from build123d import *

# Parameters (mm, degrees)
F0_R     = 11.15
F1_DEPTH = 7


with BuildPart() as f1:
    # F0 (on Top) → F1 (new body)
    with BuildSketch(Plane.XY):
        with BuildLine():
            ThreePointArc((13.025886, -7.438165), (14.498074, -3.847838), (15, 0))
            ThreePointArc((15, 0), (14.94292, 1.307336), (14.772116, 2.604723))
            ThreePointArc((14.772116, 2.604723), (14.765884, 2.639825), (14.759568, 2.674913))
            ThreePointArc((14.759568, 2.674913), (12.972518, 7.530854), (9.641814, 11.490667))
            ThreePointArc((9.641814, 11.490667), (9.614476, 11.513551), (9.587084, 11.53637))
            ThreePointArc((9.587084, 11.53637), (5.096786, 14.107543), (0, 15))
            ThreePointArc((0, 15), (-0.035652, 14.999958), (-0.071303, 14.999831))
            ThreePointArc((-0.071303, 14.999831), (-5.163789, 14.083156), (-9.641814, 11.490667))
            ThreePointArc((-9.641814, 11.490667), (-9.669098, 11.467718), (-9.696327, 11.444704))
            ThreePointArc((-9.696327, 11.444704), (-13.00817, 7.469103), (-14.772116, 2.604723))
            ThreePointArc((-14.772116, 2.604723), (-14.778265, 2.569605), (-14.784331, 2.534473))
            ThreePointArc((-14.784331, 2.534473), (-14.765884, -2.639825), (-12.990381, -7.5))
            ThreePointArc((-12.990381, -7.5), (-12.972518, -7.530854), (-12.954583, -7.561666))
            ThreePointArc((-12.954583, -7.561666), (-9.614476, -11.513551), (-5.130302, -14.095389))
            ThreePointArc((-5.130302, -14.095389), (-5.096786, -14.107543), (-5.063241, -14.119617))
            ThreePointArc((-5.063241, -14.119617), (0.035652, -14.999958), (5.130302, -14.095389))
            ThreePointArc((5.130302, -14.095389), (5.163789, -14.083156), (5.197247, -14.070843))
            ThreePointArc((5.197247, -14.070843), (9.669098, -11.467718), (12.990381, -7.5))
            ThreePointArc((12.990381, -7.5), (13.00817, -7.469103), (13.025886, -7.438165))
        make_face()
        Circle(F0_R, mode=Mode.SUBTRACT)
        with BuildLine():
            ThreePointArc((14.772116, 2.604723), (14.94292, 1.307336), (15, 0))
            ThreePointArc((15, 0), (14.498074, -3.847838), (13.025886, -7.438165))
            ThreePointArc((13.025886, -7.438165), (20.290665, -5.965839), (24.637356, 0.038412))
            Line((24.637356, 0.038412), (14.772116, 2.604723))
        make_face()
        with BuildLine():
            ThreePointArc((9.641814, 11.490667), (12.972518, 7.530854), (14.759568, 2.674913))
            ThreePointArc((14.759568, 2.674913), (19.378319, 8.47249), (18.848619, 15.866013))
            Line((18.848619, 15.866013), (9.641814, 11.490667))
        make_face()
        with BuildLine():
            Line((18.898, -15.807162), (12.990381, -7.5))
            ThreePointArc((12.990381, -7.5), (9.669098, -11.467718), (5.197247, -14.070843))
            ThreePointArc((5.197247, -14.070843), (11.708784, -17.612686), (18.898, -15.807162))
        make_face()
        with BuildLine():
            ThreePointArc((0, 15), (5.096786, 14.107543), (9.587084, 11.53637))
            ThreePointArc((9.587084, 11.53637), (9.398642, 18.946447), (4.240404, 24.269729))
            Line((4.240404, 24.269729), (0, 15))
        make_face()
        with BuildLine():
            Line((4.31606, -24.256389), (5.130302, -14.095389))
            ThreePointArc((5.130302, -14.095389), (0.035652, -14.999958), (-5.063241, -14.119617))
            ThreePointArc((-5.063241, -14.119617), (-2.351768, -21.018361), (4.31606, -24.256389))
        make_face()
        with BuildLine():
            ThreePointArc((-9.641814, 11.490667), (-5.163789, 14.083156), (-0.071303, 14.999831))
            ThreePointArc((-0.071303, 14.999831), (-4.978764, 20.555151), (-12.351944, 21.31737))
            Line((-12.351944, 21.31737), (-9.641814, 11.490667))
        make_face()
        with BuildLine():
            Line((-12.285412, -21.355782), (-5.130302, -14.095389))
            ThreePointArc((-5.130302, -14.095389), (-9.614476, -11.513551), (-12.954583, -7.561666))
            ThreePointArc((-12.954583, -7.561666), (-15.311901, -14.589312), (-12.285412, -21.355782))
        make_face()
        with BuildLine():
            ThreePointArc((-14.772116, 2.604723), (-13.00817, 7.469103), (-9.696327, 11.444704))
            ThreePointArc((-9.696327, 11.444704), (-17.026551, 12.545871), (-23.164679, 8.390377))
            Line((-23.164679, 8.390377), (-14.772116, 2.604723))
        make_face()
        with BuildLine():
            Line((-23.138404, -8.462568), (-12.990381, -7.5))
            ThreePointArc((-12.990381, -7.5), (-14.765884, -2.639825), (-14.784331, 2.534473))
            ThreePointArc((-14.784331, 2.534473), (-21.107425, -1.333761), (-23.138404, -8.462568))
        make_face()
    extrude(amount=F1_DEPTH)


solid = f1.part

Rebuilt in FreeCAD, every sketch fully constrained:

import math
import FreeCAD as App
import Part
import Sketcher

V = App.Vector

doc = App.newDocument("Part")
body = doc.addObject("PartDesign::Body", "Body")

# Sketch on XY plane
sketch1 = body.newObject("Sketcher::SketchObject", "Sketch")
sketch1.AttachmentSupport = (doc.getObject("XY_Plane"), [""])
sketch1.MapMode = "FlatFace"
sketch1.addGeometry([
    Part.ArcOfCircle(Part.Circle(V(-0.157581, 0.090531, 0), V(0, 0, 1), 15.181735), math.radians(-29.998534), math.radians(-29.729435)),  # 0
    Part.ArcOfCircle(Part.Circle(V(14.772116, 2.604723, 0), V(0, 0, 1), 10.193572), math.radians(-99.863817), math.radians(-14.581551)),  # 1
    Part.LineSegment(V(24.637356, 0.038412, 0), V(14.772116, 2.604723, 0)),  # 2
    Part.ArcOfCircle(Part.Circle(V(0.072443, 0.013051, 0), V(0, 0, 1), 14.926391), math.radians(9.998953), math.radians(10.272653)),  # 3
    Part.ArcOfCircle(Part.Circle(V(9.641815, 11.490666, 0), V(0, 0, 1), 10.193572), math.radians(-59.863821), math.radians(25.418454)),  # 4
    Part.LineSegment(V(18.848619, 15.866013, 0), V(9.641814, 11.490667, 0)),  # 5
    Part.ArcOfCircle(Part.Circle(V(-0.026385, -0.031519, 0), V(0, 0, 1), 15.041105), math.radians(50.000184), math.radians(50.271798)),  # 6
    Part.ArcOfCircle(Part.Circle(V(0.000002, 15, 0), V(0, 0, 1), 10.193571), math.radians(-19.863822), math.radians(65.418453)),  # 7
    Part.LineSegment(V(4.240404, 24.269729, 0), V(0, 15, 0)),  # 8
    Part.ArcOfCircle(Part.Circle(V(-0.000211, 0.046982, 0), V(0, 0, 1), 14.953018), math.radians(89.999193), math.radians(90.272407)),  # 9
    Part.ArcOfCircle(Part.Circle(V(-9.641813, 11.490667, 0), V(0, 0, 1), 10.193572), math.radians(20.136182), math.radians(105.418455)),  # 10
    Part.LineSegment(V(-12.351944, 21.31737, 0), V(-9.641814, 11.490667, 0)),  # 11
    Part.ArcOfCircle(Part.Circle(V(-0.046447, 0.05507, 0), V(0, 0, 1), 14.927959), math.radians(129.999298), math.radians(130.272974)),  # 12
    Part.ArcOfCircle(Part.Circle(V(-14.772116, 2.604723, 0), V(0, 0, 1), 10.193572), math.radians(60.136182), math.radians(145.418446)),  # 13
    Part.LineSegment(V(-23.164679, 8.390377, 0), V(-14.772116, 2.604723, 0)),  # 14
    Part.ArcOfCircle(Part.Circle(V(0.09947, -0.017321, 0), V(0, 0, 1), 15.100966), math.radians(170.000816), math.radians(170.271356)),  # 15
    Part.ArcOfCircle(Part.Circle(V(-12.990381, -7.5, 0), V(0, 0, 1), 10.193572), math.radians(100.136179), math.radians(185.418451)),  # 16
    Part.LineSegment(V(-23.138404, -8.462568, 0), V(-12.990381, -7.5, 0)),  # 17
    Part.ArcOfCircle(Part.Circle(V(0.215163, 0.124784, 0), V(0, 0, 1), 15.248729), math.radians(-149.998177), math.radians(-149.73026)),  # 18
    Part.ArcOfCircle(Part.Circle(V(-5.130304, -14.095389, 0), V(0, 0, 1), 10.19357), math.radians(140.136177), math.radians(225.418458)),  # 19
    Part.LineSegment(V(-12.285412, -21.355782, 0), V(-5.130302, -14.095389, 0)),  # 20
    Part.ArcOfCircle(Part.Circle(V(-0.021397, -0.059306, 0), V(0, 0, 1), 14.936952), math.radians(-110.000681), math.radians(-109.727172)),  # 21
    Part.ArcOfCircle(Part.Circle(V(5.130302, -14.09539, 0), V(0, 0, 1), 10.193571), math.radians(-179.863824), math.radians(-94.58155)),  # 22
    Part.LineSegment(V(4.31606, -24.256389, 0), V(5.130302, -14.095389, 0)),  # 23
    Part.ArcOfCircle(Part.Circle(V(0.02177, -0.059181, 0), V(0, 0, 1), 14.936942), math.radians(-70.000828), math.radians(-69.72732)),  # 24
    Part.ArcOfCircle(Part.Circle(V(12.990381, -7.5, 0), V(0, 0, 1), 10.193572), math.radians(-139.863819), math.radians(-54.581551)),  # 25
    Part.LineSegment(V(18.898, -15.807162, 0), V(12.990381, -7.5, 0)),  # 26
    Part.Circle(V(0, 0, 0), V(0, 0, 1), 11.15),  # 27
], False)
sketch1.addConstraint([
    Sketcher.Constraint("Coincident", 0, 2, 1, 1),
    Sketcher.Constraint("Coincident", 1, 2, 2, 1),
    Sketcher.Constraint("Coincident", 2, 2, 3, 1),
    Sketcher.Constraint("Coincident", 3, 2, 4, 1),
    Sketcher.Constraint("Coincident", 4, 2, 5, 1),
    Sketcher.Constraint("Coincident", 5, 2, 6, 1),
    Sketcher.Constraint("Coincident", 6, 2, 7, 1),
    Sketcher.Constraint("Coincident", 7, 2, 8, 1),
    Sketcher.Constraint("Coincident", 8, 2, 9, 1),
    Sketcher.Constraint("Coincident", 9, 2, 10, 1),
    Sketcher.Constraint("Coincident", 10, 2, 11, 1),
    Sketcher.Constraint("Coincident", 11, 2, 12, 1),
    Sketcher.Constraint("Coincident", 12, 2, 13, 1),
    Sketcher.Constraint("Coincident", 13, 2, 14, 1),
    Sketcher.Constraint("Coincident", 14, 2, 15, 1),
    Sketcher.Constraint("Coincident", 15, 2, 16, 1),
    Sketcher.Constraint("Coincident", 16, 2, 17, 1),
    Sketcher.Constraint("Coincident", 17, 2, 18, 1),
    Sketcher.Constraint("Coincident", 18, 2, 19, 1),
    Sketcher.Constraint("Coincident", 19, 2, 20, 1),
    Sketcher.Constraint("Coincident", 20, 2, 21, 1),
    Sketcher.Constraint("Coincident", 21, 2, 22, 1),
    Sketcher.Constraint("Coincident", 22, 2, 23, 1),
    Sketcher.Constraint("Coincident", 23, 2, 24, 1),
    Sketcher.Constraint("Coincident", 24, 2, 25, 1),
    Sketcher.Constraint("Coincident", 25, 2, 26, 1),
    Sketcher.Constraint("Coincident", 26, 2, 0, 1),
    Sketcher.Constraint("Coincident", 27, 3, -1, 1),
    Sketcher.Constraint("Coincident", 2, 2, 1, 3),
    Sketcher.Constraint("Coincident", 5, 2, 4, 3),
    Sketcher.Constraint("Coincident", 8, 2, 7, 3),
    Sketcher.Constraint("Coincident", 11, 2, 10, 3),
    Sketcher.Constraint("Coincident", 14, 2, 13, 3),
    Sketcher.Constraint("Coincident", 17, 2, 16, 3),
    Sketcher.Constraint("Coincident", 20, 2, 19, 3),
    Sketcher.Constraint("Coincident", 23, 2, 22, 3),
    Sketcher.Constraint("Coincident", 26, 2, 25, 3),
    Sketcher.Constraint("Equal", 1, 4),
    Sketcher.Constraint("Equal", 4, 7),
    Sketcher.Constraint("Equal", 7, 10),
    Sketcher.Constraint("Equal", 10, 13),
    Sketcher.Constraint("Equal", 13, 16),
    Sketcher.Constraint("Equal", 16, 19),
    Sketcher.Constraint("Equal", 19, 22),
    Sketcher.Constraint("Equal", 22, 25),
    Sketcher.Constraint("Symmetric", 4, 3, 10, 3, -2),
    Sketcher.Constraint("Symmetric", 1, 3, 13, 3, -2),
    Sketcher.Constraint("Symmetric", 19, 3, 22, 3, -2),
    Sketcher.Constraint("Symmetric", 16, 3, 25, 3, -2),
    Sketcher.Constraint("PointOnObject", 7, 3, -2),
    Sketcher.Constraint("Diameter", 27, 22.3),
    Sketcher.Constraint("DistanceY", -1, 1, 7, 3, 15.0),
    Sketcher.Constraint("DistanceY", 16, 3, -1, 1, 7.5),
    Sketcher.Constraint("Radius", 3, 14.926391),
    Sketcher.Constraint("Radius", 4, 10.193572),
    Sketcher.Constraint("Radius", 12, 14.927959),
    Sketcher.Constraint("Radius", 18, 15.248729),
    Sketcher.Constraint("Radius", 21, 14.936952),
    Sketcher.Constraint("DistanceX", -1, 1, 25, 2, 18.898),
    Sketcher.Constraint("Radius", 0, 15.181735),
    Sketcher.Constraint("Radius", 6, 15.041105),
    Sketcher.Constraint("Radius", 9, 14.953018),
    Sketcher.Constraint("Radius", 15, 15.100966),
    Sketcher.Constraint("Radius", 24, 14.936942),
    Sketcher.Constraint("DistanceY", 22, 2, 22, 3, 10.160999),
    Sketcher.Constraint("DistanceX", -1, 1, 22, 3, 5.130302),
    Sketcher.Constraint("DistanceX", 4, 3, 1, 3, 5.130301),
    Sketcher.Constraint("DistanceX", 6, 3, 1, 3, 14.798501),
    Sketcher.Constraint("DistanceY", 6, 3, 9, 3, 0.078501),
    Sketcher.Constraint("DistanceY", 6, 3, 15, 3, 0.014199),
    Sketcher.Constraint("DistanceX", 16, 3, 0, 3, 12.8328),
    Sketcher.Constraint("DistanceX", 21, 3, 22, 3, 5.151698),
    Sketcher.Constraint("DistanceX", 24, 3, 15, 3, 0.0777),
    Sketcher.Constraint("DistanceY", 22, 3, 1, 2, 14.133802),
    Sketcher.Constraint("DistanceY", 1, 2, 3, 2, 2.636501),
    Sketcher.Constraint("DistanceY", 3, 2, 4, 2, 13.1911),
    Sketcher.Constraint("DistanceY", 9, 2, 7, 2, 9.269898),
    Sketcher.Constraint("DistanceX", 16, 3, 18, 2, 0.035798),
    Sketcher.Constraint("DistanceY", 16, 2, 18, 2, 0.900902),
    Sketcher.Constraint("DistanceX", 0, 3, -1, 1, 0.157581),
    Sketcher.Constraint("DistanceY", -1, 1, 3, 3, 0.013051),
    Sketcher.Constraint("DistanceX", 9, 3, -1, 1, 0.000211),
    Sketcher.Constraint("DistanceY", -1, 1, 12, 3, 0.05507),
    Sketcher.Constraint("DistanceX", -1, 1, 15, 3, 0.09947),
    Sketcher.Constraint("DistanceY", 19, 3, -1, 1, 14.095389),
    Sketcher.Constraint("DistanceY", -1, 1, 10, 2, 21.31737),
    Sketcher.Constraint("DistanceX", 13, 2, -1, 1, 23.164679),
    Sketcher.Constraint("DistanceX", 19, 2, 19, 3, 7.155108),
])
pad1 = body.newObject("PartDesign::Pad", "Pad")
pad1.Profile = sketch1
pad1.Length = 7

doc.recompute()
